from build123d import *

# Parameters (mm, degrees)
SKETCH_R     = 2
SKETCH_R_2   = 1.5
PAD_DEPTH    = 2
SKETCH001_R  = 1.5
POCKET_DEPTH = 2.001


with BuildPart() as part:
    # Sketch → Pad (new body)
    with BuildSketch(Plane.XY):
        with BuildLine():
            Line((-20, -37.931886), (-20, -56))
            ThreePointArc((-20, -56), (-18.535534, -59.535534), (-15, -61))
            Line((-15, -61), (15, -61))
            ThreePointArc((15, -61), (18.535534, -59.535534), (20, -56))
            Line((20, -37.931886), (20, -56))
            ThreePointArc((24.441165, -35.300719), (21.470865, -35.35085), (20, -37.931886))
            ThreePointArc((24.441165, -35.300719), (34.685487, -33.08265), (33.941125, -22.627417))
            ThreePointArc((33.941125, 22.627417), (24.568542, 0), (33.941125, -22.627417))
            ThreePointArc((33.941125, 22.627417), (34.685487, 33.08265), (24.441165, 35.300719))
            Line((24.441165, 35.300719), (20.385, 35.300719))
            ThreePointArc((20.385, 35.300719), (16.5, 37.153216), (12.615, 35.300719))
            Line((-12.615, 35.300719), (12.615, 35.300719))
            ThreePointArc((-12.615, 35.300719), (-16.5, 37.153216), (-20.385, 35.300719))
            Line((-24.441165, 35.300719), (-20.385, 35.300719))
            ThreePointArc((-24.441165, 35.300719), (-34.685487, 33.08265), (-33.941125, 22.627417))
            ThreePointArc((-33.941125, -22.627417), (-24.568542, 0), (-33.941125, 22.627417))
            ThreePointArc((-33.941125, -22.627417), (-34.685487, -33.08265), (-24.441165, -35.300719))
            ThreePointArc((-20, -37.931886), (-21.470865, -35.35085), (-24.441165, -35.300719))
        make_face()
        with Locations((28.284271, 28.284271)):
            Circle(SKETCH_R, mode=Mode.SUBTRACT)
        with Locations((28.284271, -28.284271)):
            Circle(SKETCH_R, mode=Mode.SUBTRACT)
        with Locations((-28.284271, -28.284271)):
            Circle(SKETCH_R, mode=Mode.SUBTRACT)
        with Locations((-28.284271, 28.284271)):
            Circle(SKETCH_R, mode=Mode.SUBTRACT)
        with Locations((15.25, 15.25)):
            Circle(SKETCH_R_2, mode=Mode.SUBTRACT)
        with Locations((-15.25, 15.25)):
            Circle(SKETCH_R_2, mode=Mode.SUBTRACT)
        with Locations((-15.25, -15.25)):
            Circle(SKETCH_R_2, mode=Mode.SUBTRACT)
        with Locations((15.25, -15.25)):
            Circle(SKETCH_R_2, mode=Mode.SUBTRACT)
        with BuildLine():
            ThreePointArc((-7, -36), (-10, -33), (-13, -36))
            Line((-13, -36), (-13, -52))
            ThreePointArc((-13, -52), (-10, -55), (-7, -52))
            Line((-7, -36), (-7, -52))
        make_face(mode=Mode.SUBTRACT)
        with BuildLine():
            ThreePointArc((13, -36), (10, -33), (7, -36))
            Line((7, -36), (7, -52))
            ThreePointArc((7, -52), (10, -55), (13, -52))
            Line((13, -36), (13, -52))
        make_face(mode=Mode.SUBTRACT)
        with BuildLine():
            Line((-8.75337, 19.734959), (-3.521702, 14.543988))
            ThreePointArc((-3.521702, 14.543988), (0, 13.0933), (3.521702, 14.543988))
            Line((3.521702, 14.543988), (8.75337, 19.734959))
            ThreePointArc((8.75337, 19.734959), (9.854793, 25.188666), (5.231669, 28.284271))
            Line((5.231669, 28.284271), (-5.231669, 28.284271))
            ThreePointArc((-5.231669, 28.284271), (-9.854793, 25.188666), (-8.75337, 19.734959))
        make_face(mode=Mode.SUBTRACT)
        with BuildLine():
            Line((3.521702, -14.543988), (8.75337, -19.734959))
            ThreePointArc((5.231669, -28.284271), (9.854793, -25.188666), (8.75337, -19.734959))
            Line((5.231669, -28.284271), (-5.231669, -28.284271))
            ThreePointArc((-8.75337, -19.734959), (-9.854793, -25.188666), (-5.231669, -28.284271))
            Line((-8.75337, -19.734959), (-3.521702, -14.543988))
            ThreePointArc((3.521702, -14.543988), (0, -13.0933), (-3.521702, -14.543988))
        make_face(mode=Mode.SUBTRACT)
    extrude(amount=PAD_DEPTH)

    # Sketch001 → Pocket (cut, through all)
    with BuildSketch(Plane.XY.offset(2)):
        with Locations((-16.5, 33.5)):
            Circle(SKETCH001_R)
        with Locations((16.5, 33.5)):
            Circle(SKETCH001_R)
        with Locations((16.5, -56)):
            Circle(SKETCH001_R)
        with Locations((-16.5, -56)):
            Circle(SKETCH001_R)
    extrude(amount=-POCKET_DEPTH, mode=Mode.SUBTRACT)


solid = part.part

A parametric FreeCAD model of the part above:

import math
import FreeCAD as App
import Part
import Sketcher

V = App.Vector

doc = App.newDocument("Part")
body = doc.addObject("PartDesign::Body", "Body")

# Sketch on XY plane
sketch1 = body.newObject("Sketcher::SketchObject", "Sketch")
sketch1.AttachmentSupport = (doc.getObject("XY_Plane"), [""])
sketch1.MapMode = "FlatFace"
sketch1.addGeometry([
    Part.LineSegment(V(-20, -37.931886, 0), V(-20, -56, 0)),  # 0
    Part.ArcOfCircle(Part.Circle(V(-15, -56, 0), V(0, 0, 1), 5), math.radians(179.999996), math.radians(270.000004)),  # 1
    Part.LineSegment(V(-15, -61, 0), V(15, -61, 0)),  # 2
    Part.ArcOfCircle(Part.Circle(V(15, -56, 0), V(0, 0, 1), 5), math.radians(-90.000004), math.radians(0.000004)),  # 3
    Part.LineSegment(V(20, -56, 0), V(20, -37.931886, 0)),  # 4
    Part.ArcOfCircle(Part.Circle(V(22.999999, -37.931885, 0), V(0, 0, 1), 2.999999), math.radians(61.289208), math.radians(180.000011)),  # 5
    Part.ArcOfCircle(Part.Circle(V(28.284271, -28.284272, 0), V(0, 0, 1), 8), math.radians(-118.710764), math.radians(45.000004)),  # 6
    Part.ArcOfCircle(Part.Circle(V(56.568542, 0, 0), V(0, 0, 1), 32), math.radians(135), math.radians(225)),  # 7
    Part.ArcOfCircle(Part.Circle(V(28.284271, 28.284272, 0), V(0, 0, 1), 8), math.radians(-45.000004), math.radians(118.710764)),  # 8
    Part.LineSegment(V(24.441165, 35.300719, 0), V(20.385, 35.300719, 0)),  # 9
    Part.ArcOfCircle(Part.Circle(V(16.5, 32.153216, 0), V(0, 0, 1), 5), math.radians(39.013288), math.radians(140.986712)),  # 10
    Part.LineSegment(V(12.615, 35.300719, 0), V(-12.615, 35.300719, 0)),  # 11
    Part.ArcOfCircle(Part.Circle(V(-16.5, 32.153216, 0), V(0, 0, 1), 5), math.radians(39.013288), math.radians(140.986712)),  # 12
    Part.LineSegment(V(-20.385, 35.300719, 0), V(-24.441165, 35.300719, 0)),  # 13
    Part.ArcOfCircle(Part.Circle(V(-28.284271, 28.284272, 0), V(0, 0, 1), 8), math.radians(61.289236), math.radians(225.000004)),  # 14
    Part.ArcOfCircle(Part.Circle(V(-56.568542, 0, 0), V(0, 0, 1), 32), math.radians(-45), math.radians(45)),  # 15
    Part.ArcOfCircle(Part.Circle(V(-28.284271, -28.284272, 0), V(0, 0, 1), 8), math.radians(134.999996), math.radians(298.710764)),  # 16
    Part.ArcOfCircle(Part.Circle(V(-22.999999, -37.931885, 0), V(0, 0, 1), 2.999999), math.radians(-0.000011), math.radians(118.710792)),  # 17
    Part.ArcOfCircle(Part.Circle(V(-10, -36, 0), V(0, 0, 1), 3), math.radians(0), math.radians(180)),  # 18
    Part.LineSegment(V(-7, -36, 0), V(-7, -52, 0)),  # 19
    Part.ArcOfCircle(Part.Circle(V(-10, -52, 0), V(0, 0, 1), 3), math.radians(180), math.radians(360)),  # 20
    Part.LineSegment(V(-13, -52, 0), V(-13, -36, 0)),  # 21
    Part.Circle(V(-28.284271, -28.284271, 0), V(0, 0, 1), 2),  # 22
    Part.Circle(V(-15.25, -15.25, 0), V(0, 0, 1), 1.5),  # 23
    Part.ArcOfCircle(Part.Circle(V(0, -18.0933, 0), V(0, 0, 1), 5), math.radians(45.223722), math.radians(134.776278)),  # 24
    Part.LineSegment(V(3.521702, -14.543988, 0), V(8.75337, -19.734959, 0)),  # 25
    Part.ArcOfCircle(Part.Circle(V(5.231669, -23.284271, 0), V(0, 0, 1), 5), math.radians(-89.999997), math.radians(45.223728)),  # 26
    Part.LineSegment(V(5.231669, -28.284271, 0), V(-5.231669, -28.284271, 0)),  # 27
    Part.ArcOfCircle(Part.Circle(V(-5.231669, -23.284271, 0), V(0, 0, 1), 5), math.radians(134.776272), math.radians(269.999997)),  # 28
    Part.LineSegment(V(-8.75337, -19.734959, 0), V(-3.521702, -14.543988, 0)),  # 29
    Part.ArcOfCircle(Part.Circle(V(10, -36, 0), V(0, 0, 1), 3), math.radians(0), math.radians(180)),  # 30
    Part.LineSegment(V(13, -36, 0), V(13, -52, 0)),  # 31
    Part.ArcOfCircle(Part.Circle(V(10, -52, 0), V(0, 0, 1), 3), math.radians(180), math.radians(360)),  # 32
    Part.LineSegment(V(7, -52, 0), V(7, -36, 0)),  # 33
    Part.Circle(V(28.284271, -28.284271, 0), V(0, 0, 1), 2),  # 34
    Part.Circle(V(15.25, -15.25, 0), V(0, 0, 1), 1.5),  # 35
    Part.Circle(V(-15.25, 15.25, 0), V(0, 0, 1), 1.5),  # 36
    Part.Circle(V(-28.284271, 28.284271, 0), V(0, 0, 1), 2),  # 37
    Part.LineSegment(V(-3.521702, 14.543988, 0), V(-8.75337, 19.734959, 0)),  # 38
    Part.ArcOfCircle(Part.Circle(V(-5.231669, 23.284271, 0), V(0, 0, 1), 5), math.radians(90.000003), math.radians(225.223728)),  # 39
    Part.LineSegment(V(-5.231669, 28.284271, 0), V(5.231669, 28.284271, 0)),  # 40
    Part.ArcOfCircle(Part.Circle(V(5.231669, 23.284271, 0), V(0, 0, 1), 5), math.radians(-45.223728), math.radians(89.999997)),  # 41
    Part.LineSegment(V(8.75337, 19.734959, 0), V(3.521702, 14.543988, 0)),  # 42
    Part.ArcOfCircle(Part.Circle(V(0, 18.0933, 0), V(0, 0, 1), 5), math.radians(-134.776278), math.radians(-45.223722)),  # 43
    Part.Circle(V(15.25, 15.25, 0), V(0, 0, 1), 1.5),  # 44
    Part.Circle(V(28.284271, 28.284271, 0), V(0, 0, 1), 2),  # 45
], False)
sketch1.addConstraint([
    Sketcher.Constraint("Tangent", 0, 2, 1, 1),
    Sketcher.Constraint("Tangent", 1, 2, 2, 1),
    Sketcher.Constraint("Tangent", 2, 2, 3, 1),
    Sketcher.Constraint("Tangent", 3, 2, 4, 1),
    Sketcher.Constraint("Tangent", 4, 2, 5, 2),
    Sketcher.Constraint("Tangent", 5, 1, 6, 1),
    Sketcher.Constraint("Tangent", 6, 2, 7, 2),
    Sketcher.Constraint("Tangent", 7, 1, 8, 1),
    Sketcher.Constraint("Coincident", 8, 2, 9, 1),
    Sketcher.Constraint("Coincident", 9, 2, 10, 1),
    Sketcher.Constraint("Coincident", 10, 2, 11, 1),
    Sketcher.Constraint("Coincident", 11, 2, 12, 1),
    Sketcher.Constraint("Coincident", 12, 2, 13, 1),
    Sketcher.Constraint("Coincident", 13, 2, 14, 1),
    Sketcher.Constraint("Tangent", 14, 2, 15, 2),
    Sketcher.Constraint("Tangent", 15, 1, 16, 1),
    Sketcher.Constraint("Tangent", 16, 2, 17, 2),
    Sketcher.Constraint("Tangent", 17, 1, 0, 1),
    Sketcher.Constraint("Tangent", 18, 1, 19, 1),
    Sketcher.Constraint("Tangent", 19, 2, 20, 2),
    Sketcher.Constraint("Tangent", 20, 1, 21, 1),
    Sketcher.Constraint("Tangent", 21, 2, 18, 2),
    Sketcher.Constraint("Tangent", 24, 1, 25, 1),
    Sketcher.Constraint("Tangent", 25, 2, 26, 2),
    Sketcher.Constraint("Tangent", 26, 1, 27, 1),
    Sketcher.Constraint("Tangent", 27, 2, 28, 2),
    Sketcher.Constraint("Tangent", 28, 1, 29, 1),
    Sketcher.Constraint("Tangent", 29, 2, 24, 2),
    Sketcher.Constraint("Tangent", 30, 1, 31, 1),
    Sketcher.Constraint("Tangent", 31, 2, 32, 2),
    Sketcher.Constraint("Tangent", 32, 1, 33, 1),
    Sketcher.Constraint("Tangent", 33, 2, 30, 2),
    Sketcher.Constraint("Tangent", 38, 2, 39, 2),
    Sketcher.Constraint("Tangent", 39, 1, 40, 1),
    Sketcher.Constraint("Tangent", 40, 2, 41, 2),
    Sketcher.Constraint("Tangent", 41, 1, 42, 1),
    Sketcher.Constraint("Tangent", 42, 2, 43, 2),
    Sketcher.Constraint("Tangent", 43, 1, 38, 1),
    Sketcher.Constraint("Vertical", 0),
    Sketcher.Constraint("Horizontal", 2),
    Sketcher.Constraint("Vertical", 4),
    Sketcher.Constraint("Horizontal", 9),
    Sketcher.Constraint("Horizontal", 11),
    Sketcher.Constraint("Horizontal", 13),
    Sketcher.Constraint("Vertical", 19),
    Sketcher.Constraint("Vertical", 21),
    Sketcher.Constraint("Horizontal", 27),
    Sketcher.Constraint("Vertical", 31),
    Sketcher.Constraint("Vertical", 33),
    Sketcher.Constraint("Horizontal", 40),
    Sketcher.Constraint("Coincident", 22, 3, 16, 3),
    Sketcher.Constraint("Coincident", 34, 3, 6, 3),
    Sketcher.Constraint("Coincident", 37, 3, 14, 3),
    Sketcher.Constraint("Coincident", 45, 3, 8, 3),
    Sketcher.Constraint("Equal", 1, 3),
    Sketcher.Constraint("Equal", 6, 8),
    Sketcher.Constraint("Equal", 3, 10),
    Sketcher.Constraint("Equal", 10, 12),
    Sketcher.Constraint("Equal", 8, 14),
    Sketcher.Constraint("Equal", 7, 15),
    Sketcher.Constraint("Equal", 14, 16),
    Sketcher.Constraint("Equal", 5, 17),
    Sketcher.Constraint("Equal", 17, 18),
    Sketcher.Constraint("Equal", 12, 24),
    Sketcher.Constraint("Equal", 24, 26),
    Sketcher.Constraint("Equal", 26, 28),
    Sketcher.Constraint("Equal", 20, 30),
    Sketcher.Constraint("Equal", 22, 34),
    Sketcher.Constraint("Equal", 23, 35),
    Sketcher.Constraint("Equal", 35, 36),
    Sketcher.Constraint("Equal", 34, 37),
    Sketcher.Constraint("Equal", 28, 39),
    Sketcher.Constraint("Equal", 39, 41),
    Sketcher.Constraint("Equal", 41, 43),
    Sketcher.Constraint("Equal", 36, 44),
    Sketcher.Constraint("Equal", 37, 45),
    Sketcher.Constraint("Symmetric", 6, 3, 14, 3, -1, 1),
    Sketcher.Constraint("Symmetric", 8, 3, 16, 3, -1, 1),
    Sketcher.Constraint("Symmetric", 35, 3, 36, 3, -1, 1),
    Sketcher.Constraint("Symmetric", 26, 3, 39, 3, -1, 1),
    Sketcher.Constraint("Symmetric", 24, 3, 43, 3, -1, 1),
    Sketcher.Constraint("Symmetric", 23, 3, 44, 3, -1, 1),
    Sketcher.Constraint("Symmetric", 10, 3, 12, 3, -2),
    Sketcher.Constraint("Symmetric", 8, 3, 14, 3, -2),
    Sketcher.Constraint("Symmetric", 18, 3, 30, 3, -2),
    Sketcher.Constraint("Symmetric", 23, 3, 35, 3, -2),
    Sketcher.Constraint("Symmetric", 25, 2, 28, 1, -2),
    Sketcher.Constraint("Parallel", 29, 42),
    Sketcher.Constraint("Horizontal", 5, 3, 17, 3),
    Sketcher.Constraint("Horizontal", 20, 3, 32, 3),
    Sketcher.Constraint("Horizontal", 9, 2, 10, 2),
    Sketcher.Constraint("Horizontal", 11, 2, 12, 2),
    Sketcher.Constraint("Horizontal", 34, 3, 26, 1),
    Sketcher.Constraint("Vertical", 5, 1, 8, 2),
    Sketcher.Constraint("Diameter", 22, 4.0),
    Sketcher.Constraint("Diameter", 23, 3.0),
    Sketcher.Constraint("Radius", 1, 5.0),
    Sketcher.Constraint("Radius", 5, 2.999999),
    Sketcher.Constraint("Radius", 6, 8.0),
    Sketcher.Constraint("Radius", 7, 32.0),
    Sketcher.Constraint("DistanceX", 2, 1, 2, 2, 30.0),
    Sketcher.Constraint("DistanceY", 19, 2, 19, 1, 16.0),
    Sketcher.Constraint("DistanceY", 1, 3, -1, 1, 56.0),
    Sketcher.Constraint("DistanceX", 18, 3, -1, 1, 10.0),
    Sketcher.Constraint("DistanceY", 18, 3, -1, 1, 36.0),
    Sketcher.Constraint("DistanceX", 11, 2, 11, 1, 25.23),
    Sketcher.Constraint("DistanceX", -1, 1, 10, 3, 16.5),
    Sketcher.Constraint("DistanceX", 23, 3, -1, 1, 15.25),
    Sketcher.Constraint("DistanceY", 23, 3, -1, 1, 15.25),
    Sketcher.Constraint("DistanceY", 24, 3, -1, 1, 18.0933),
    Sketcher.Constraint("DistanceX", -1, 1, 24, 1, 3.521702),
    Sketcher.Constraint("DistanceX", 9, 2, 9, 1, 4.056165),
    Sketcher.Constraint("DistanceX", 27, 2, 27, 1, 10.463338),
])
pad1 = body.newObject("PartDesign::Pad", "Pad")
pad1.Profile = sketch1
pad1.Length = 2

# Sketch on XY plane
sketch2 = body.newObject("Sketcher::SketchObject", "Sketch001")
sketch2.AttachmentSupport = (doc.getObject("XY_Plane"), [""])
sketch2.MapMode = "FlatFace"
sketch2.AttachmentOffset = App.Placement(V(0, 0, 2), App.Rotation())
sketch2.addGeometry([
    Part.Circle(V(-16.5, 33.5, 0), V(0, 0, 1), 1.5),
    Part.Circle(V(16.5, 33.5, 0), V(0, 0, 1), 1.5),
    Part.Circle(V(16.5, -56, 0), V(0, 0, 1), 1.5),
    Part.Circle(V(-16.5, -56, 0), V(0, 0, 1), 1.5),
], False)
sketch2.addConstraint([
    Sketcher.Constraint("Equal", 0, 1),
    Sketcher.Constraint("Equal", 1, 2),
    Sketcher.Constraint("Equal", 2, 3),
    Sketcher.Constraint("Symmetric", 0, 3, 1, 3, -2),
    Sketcher.Constraint("Symmetric", 2, 3, 3, 3, -2),
    Sketcher.Constraint("Vertical", 1, 3, 2, 3),
    Sketcher.Constraint("Diameter", 0, 3.0),
    Sketcher.Constraint("DistanceY", 2, 3, -1, 1, 56.0),
    Sketcher.Constraint("DistanceX", 0, 3, 1, 3, 33.0),
    Sketcher.Constraint("DistanceY", -1, 1, 0, 3, 33.5),
])
pocket1 = body.newObject("PartDesign::Pocket", "Pocket")
pocket1.Profile = sketch2
pocket1.Type = "ThroughAll"

doc.recompute()
